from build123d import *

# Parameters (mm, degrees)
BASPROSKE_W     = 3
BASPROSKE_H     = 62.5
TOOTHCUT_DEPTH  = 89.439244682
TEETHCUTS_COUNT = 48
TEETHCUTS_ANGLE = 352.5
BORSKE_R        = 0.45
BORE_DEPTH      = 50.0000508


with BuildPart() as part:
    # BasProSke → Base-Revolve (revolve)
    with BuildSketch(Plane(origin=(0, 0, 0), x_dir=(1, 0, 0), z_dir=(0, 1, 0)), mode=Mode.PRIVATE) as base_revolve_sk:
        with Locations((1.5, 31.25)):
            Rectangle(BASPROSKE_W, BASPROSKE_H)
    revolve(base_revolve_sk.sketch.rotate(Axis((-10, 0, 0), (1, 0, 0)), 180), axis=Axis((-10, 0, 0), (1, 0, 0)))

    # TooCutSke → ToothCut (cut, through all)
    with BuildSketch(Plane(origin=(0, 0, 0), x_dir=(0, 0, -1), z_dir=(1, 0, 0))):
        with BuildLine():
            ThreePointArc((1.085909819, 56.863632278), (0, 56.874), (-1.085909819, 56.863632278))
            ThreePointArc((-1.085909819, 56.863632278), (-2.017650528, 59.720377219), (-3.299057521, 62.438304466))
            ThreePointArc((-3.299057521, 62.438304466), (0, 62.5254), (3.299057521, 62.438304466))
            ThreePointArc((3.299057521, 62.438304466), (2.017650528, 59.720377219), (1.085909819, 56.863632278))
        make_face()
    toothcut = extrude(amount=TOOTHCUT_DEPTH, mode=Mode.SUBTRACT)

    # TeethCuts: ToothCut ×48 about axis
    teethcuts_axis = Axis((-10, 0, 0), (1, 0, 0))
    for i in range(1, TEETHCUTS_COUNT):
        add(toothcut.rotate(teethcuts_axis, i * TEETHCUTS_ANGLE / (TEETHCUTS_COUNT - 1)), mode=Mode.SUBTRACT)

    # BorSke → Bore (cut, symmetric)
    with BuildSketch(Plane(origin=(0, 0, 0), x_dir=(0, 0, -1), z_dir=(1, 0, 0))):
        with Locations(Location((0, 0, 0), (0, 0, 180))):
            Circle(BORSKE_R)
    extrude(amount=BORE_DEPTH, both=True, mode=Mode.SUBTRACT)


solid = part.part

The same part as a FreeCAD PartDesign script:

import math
import FreeCAD as App
import Part
import Sketcher


def add_polygon(sketch, points):
    """Adds a closed chain of lines whose ends are joined by coincident constraints."""
    first, n = sketch.GeometryCount, len(points)
    for a, b in zip(points, points[1:] + points[:1]):
        sketch.addGeometry(Part.LineSegment(App.Vector(*a, 0), App.Vector(*b, 0)), False)
    for i in range(n):
        sketch.addConstraint(Sketcher.Constraint("Coincident", first + i, 2, first + (i + 1) % n, 1))

doc = App.newDocument("Part")
body = doc.addObject("PartDesign::Body", "Body")

# Sketch on XZ plane
sketch1 = doc.addObject("Sketcher::SketchObject", "Sketch")
body.addObject(sketch1)
sketch1.AttachmentSupport = (doc.XZ_Plane, [""])
sketch1.MapMode = "FlatFace"
add_polygon(sketch1, [(0, -62.5), (0, 0), (3, 0), (3, -62.5)])  # lines 0-3
sketch1.addConstraint([
    Sketcher.Constraint("Vertical", 0),
    Sketcher.Constraint("Horizontal", 1),
    Sketcher.Constraint("Vertical", 2),
    Sketcher.Constraint("Horizontal", 3),
    Sketcher.Constraint("Coincident", 0, 2, -1, 1),
    Sketcher.Constraint("DistanceX", 1, 1, 1, 2, 3.0),
    Sketcher.Constraint("DistanceY", 0, 1, 0, 2, 62.5),
])
revolution = doc.addObject("PartDesign::Revolution", "Revolution")
body.addObject(revolution)
revolution.Profile = sketch1
revolution.ReferenceAxis = (sketch1, ["H_Axis"])
revolution.Angle = 360

# Sketch on YZ plane
sketch2 = doc.addObject("Sketcher::SketchObject", "Sketch001")
body.addObject(sketch2)
sketch2.AttachmentSupport = (doc.YZ_Plane, [""])
sketch2.MapMode = "FlatFace"
sketch2.addGeometry([
    Part.ArcOfCircle(Part.Circle(App.Vector(0, 0, 0), App.Vector(0, 0, 1), 56.9), math.radians(-1.09), math.radians(1.09)),
    Part.ArcOfCircle(Part.Circle(App.Vector(50.9, -24.3, 0), App.Vector(0, 0, 1), 24), math.radians(61.17), math.radians(75.53)),
    Part.ArcOfCircle(Part.Circle(App.Vector(0, 0, 0), App.Vector(0, 0, 1), 62.5), math.radians(-3.02), math.radians(3.02)),
    Part.ArcOfCircle(Part.Circle(App.Vector(50.9, 24.3, 0), App.Vector(0, 0, 1), 24), math.radians(-75.53), math.radians(-61.17)),
], False)
sketch2.addConstraint([
    Sketcher.Constraint("Coincident", 0, 1, 1, 2),
    Sketcher.Constraint("Coincident", 1, 1, 2, 1),
    Sketcher.Constraint("Coincident", 2, 2, 3, 2),
    Sketcher.Constraint("Coincident", 3, 1, 0, 2),
    Sketcher.Constraint("Coincident", 0, 3, -1, 1),
    Sketcher.Constraint("Coincident", 2, 3, -1, 1),
    Sketcher.Constraint("Equal", 1, 3),
    Sketcher.Constraint("Symmetric", 1, 3, 3, 3, -1),
    Sketcher.Constraint("Radius", 1, 24.0),
    Sketcher.Constraint("Radius", 0, 56.873999),
    Sketcher.Constraint("Radius", 2, 62.5254),
    Sketcher.Constraint("DistanceX", -1, 1, 1, 3, 50.86471),
    Sketcher.Constraint("DistanceY", 1, 3, -1, 1, 24.324088),
])
pocket1 = doc.addObject("PartDesign::Pocket", "Pocket")
body.addObject(pocket1)
pocket1.Profile = sketch2
pocket1.Type = "ThroughAll"
pocket1.Reversed = True
doc.recompute()

polarpattern = doc.addObject("PartDesign::PolarPattern", "PolarPattern")
body.addObject(polarpattern)
polarpattern.Originals = [pocket1]
polarpattern.Axis = (doc.X_Axis, [""])
polarpattern.Angle = 360
polarpattern.Occurrences = 48
body.Tip = polarpattern

# Sketch on YZ plane
sketch3 = doc.addObject("Sketcher::SketchObject", "Sketch002")
body.addObject(sketch3)
sketch3.AttachmentSupport = (doc.YZ_Plane, [""])
sketch3.MapMode = "FlatFace"
sketch3.addGeometry(Part.Circle(App.Vector(0, 0, 0), App.Vector(0, 0, 1), 0.45), False)
sketch3.addConstraint([
    Sketcher.Constraint("Coincident", 0, 3, -1, 1),
    Sketcher.Constraint("Diameter", 0, 0.9),
])
pocket2 = doc.addObject("PartDesign::Pocket", "Pocket001")
body.addObject(pocket2)
pocket2.Profile = sketch3
pocket2.Length = 100.000102
pocket2.Midplane = True

doc.recompute()
